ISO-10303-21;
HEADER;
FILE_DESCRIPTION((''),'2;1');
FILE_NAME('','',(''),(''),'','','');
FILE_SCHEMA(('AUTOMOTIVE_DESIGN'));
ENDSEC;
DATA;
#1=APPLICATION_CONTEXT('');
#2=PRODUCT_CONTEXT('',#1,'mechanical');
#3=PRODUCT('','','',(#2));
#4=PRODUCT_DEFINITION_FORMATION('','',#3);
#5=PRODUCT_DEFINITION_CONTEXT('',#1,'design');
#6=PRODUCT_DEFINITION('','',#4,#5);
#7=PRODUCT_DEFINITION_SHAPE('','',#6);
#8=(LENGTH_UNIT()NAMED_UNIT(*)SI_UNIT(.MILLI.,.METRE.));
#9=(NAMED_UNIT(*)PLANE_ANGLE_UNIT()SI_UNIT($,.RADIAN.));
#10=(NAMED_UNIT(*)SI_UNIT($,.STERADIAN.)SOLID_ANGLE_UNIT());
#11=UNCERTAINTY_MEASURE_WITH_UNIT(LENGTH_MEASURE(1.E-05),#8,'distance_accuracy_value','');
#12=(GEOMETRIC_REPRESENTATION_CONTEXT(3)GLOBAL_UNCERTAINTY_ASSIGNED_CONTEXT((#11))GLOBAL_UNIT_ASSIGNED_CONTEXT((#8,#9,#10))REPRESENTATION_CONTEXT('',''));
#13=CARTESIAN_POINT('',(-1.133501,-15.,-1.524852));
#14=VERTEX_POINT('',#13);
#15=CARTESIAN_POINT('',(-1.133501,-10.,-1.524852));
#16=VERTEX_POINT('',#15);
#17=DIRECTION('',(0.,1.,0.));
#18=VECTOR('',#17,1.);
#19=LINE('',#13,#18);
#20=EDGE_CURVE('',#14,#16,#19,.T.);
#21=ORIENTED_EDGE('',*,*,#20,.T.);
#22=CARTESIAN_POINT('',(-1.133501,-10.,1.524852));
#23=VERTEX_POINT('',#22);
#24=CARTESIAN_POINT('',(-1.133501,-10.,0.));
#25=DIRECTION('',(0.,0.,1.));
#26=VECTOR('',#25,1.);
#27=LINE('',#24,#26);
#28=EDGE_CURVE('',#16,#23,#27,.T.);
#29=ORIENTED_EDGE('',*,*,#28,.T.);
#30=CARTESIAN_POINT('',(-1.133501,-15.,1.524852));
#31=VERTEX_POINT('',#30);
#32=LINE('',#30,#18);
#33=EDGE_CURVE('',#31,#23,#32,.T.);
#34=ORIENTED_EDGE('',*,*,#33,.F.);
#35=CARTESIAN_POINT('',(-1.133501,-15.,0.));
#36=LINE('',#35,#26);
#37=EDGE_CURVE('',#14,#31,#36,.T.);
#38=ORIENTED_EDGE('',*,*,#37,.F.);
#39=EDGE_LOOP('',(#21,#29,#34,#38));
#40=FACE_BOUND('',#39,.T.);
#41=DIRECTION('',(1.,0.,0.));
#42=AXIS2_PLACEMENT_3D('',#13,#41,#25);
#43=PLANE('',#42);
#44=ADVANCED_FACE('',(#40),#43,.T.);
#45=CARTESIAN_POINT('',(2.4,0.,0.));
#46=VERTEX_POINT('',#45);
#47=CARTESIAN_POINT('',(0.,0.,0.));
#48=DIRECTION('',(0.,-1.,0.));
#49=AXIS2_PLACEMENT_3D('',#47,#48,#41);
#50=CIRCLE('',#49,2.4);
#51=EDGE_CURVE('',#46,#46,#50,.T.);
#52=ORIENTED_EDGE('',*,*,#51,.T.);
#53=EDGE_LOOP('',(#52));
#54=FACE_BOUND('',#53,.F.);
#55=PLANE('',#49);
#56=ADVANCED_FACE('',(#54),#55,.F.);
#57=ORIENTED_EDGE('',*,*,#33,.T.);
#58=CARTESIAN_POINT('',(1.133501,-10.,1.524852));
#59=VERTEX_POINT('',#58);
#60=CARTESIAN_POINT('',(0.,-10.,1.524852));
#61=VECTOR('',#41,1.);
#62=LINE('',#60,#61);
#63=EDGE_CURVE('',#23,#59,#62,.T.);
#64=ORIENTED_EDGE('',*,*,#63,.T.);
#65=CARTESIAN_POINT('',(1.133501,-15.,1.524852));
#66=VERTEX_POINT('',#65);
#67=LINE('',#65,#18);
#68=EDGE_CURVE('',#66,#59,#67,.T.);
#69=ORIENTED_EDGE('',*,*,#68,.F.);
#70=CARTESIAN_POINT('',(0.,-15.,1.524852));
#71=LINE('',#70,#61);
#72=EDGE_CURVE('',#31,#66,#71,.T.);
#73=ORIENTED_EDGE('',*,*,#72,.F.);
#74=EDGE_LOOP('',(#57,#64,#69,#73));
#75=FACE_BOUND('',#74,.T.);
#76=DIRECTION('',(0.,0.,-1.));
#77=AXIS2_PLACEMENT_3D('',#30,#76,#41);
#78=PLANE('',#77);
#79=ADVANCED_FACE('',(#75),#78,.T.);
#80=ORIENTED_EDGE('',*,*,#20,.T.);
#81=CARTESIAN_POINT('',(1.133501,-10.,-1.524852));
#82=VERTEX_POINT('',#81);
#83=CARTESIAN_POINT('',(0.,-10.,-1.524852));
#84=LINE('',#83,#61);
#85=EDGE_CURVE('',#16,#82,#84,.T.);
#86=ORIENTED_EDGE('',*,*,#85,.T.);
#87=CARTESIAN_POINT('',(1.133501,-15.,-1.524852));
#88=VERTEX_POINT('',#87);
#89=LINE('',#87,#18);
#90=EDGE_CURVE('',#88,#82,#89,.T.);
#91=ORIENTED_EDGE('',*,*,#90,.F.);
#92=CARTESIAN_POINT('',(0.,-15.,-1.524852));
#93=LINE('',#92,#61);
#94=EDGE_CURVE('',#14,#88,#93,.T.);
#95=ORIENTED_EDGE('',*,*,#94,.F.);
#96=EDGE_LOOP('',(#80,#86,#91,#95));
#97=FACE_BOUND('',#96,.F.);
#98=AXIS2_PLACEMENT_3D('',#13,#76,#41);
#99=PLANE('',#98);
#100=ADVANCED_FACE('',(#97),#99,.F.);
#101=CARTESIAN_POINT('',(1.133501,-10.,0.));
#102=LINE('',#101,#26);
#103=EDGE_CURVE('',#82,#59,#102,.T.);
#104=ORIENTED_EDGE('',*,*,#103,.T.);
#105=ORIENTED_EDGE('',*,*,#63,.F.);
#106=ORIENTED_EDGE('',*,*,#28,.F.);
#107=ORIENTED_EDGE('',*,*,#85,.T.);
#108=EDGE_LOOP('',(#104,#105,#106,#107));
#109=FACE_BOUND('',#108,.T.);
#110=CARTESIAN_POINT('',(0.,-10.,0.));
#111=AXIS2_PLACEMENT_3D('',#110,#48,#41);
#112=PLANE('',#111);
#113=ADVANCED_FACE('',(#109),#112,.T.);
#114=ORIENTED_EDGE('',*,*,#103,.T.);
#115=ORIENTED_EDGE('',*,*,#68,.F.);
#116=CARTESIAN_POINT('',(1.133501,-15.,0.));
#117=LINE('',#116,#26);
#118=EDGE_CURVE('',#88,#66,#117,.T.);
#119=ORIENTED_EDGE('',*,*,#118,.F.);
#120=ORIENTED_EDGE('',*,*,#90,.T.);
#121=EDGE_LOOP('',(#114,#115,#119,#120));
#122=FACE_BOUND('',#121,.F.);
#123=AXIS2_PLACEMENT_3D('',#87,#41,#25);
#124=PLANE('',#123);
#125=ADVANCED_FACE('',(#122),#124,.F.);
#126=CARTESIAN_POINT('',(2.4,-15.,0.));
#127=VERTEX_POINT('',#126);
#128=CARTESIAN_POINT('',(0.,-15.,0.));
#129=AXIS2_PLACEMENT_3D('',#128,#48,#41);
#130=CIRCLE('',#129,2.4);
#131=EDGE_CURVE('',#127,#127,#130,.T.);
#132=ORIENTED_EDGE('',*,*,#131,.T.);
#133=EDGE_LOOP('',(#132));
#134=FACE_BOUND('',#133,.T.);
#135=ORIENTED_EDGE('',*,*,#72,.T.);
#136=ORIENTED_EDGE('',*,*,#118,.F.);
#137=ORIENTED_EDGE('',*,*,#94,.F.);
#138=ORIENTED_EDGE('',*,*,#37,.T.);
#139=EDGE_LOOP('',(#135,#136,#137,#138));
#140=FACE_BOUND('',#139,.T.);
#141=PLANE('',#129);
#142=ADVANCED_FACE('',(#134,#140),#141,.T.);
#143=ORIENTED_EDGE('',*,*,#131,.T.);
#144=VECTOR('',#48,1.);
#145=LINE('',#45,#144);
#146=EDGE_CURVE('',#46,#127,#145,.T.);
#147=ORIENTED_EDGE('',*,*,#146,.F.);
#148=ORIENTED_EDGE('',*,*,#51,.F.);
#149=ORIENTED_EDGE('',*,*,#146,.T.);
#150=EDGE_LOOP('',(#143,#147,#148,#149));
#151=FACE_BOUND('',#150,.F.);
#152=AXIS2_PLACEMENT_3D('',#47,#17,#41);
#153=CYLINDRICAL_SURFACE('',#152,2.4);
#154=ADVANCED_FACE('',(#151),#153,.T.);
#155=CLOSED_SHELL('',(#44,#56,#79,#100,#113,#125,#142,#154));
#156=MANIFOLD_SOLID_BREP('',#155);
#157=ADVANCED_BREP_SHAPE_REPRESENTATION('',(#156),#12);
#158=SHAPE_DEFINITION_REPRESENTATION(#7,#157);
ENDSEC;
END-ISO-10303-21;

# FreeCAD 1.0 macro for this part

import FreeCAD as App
import Part
import Sketcher
Q = App.Units.Quantity


def add_polygon(sketch, points):
    """Adds a closed chain of lines whose ends are joined by coincident constraints."""
    first, n = sketch.GeometryCount, len(points)
    for a, b in zip(points, points[1:] + points[:1]):
        sketch.addGeometry(Part.LineSegment(App.Vector(*a, 0), App.Vector(*b, 0)), False)
    for i in range(n):
        sketch.addConstraint(Sketcher.Constraint("Coincident", first + i, 2, first + (i + 1) % n, 1))

doc = App.newDocument("Part")
body = doc.addObject("PartDesign::Body", "Body")

# Sketch on XZ plane
sketch1 = doc.addObject("Sketcher::SketchObject", "Sketch")
body.addObject(sketch1)
sketch1.AttachmentSupport = (doc.XZ_Plane, [""])
sketch1.MapMode = "FlatFace"
sketch1.addGeometry(Part.Circle(App.Vector(0, 0, 0), App.Vector(0, 0, 1), 2.4), False)
sketch1.addConstraint([
    Sketcher.Constraint("Coincident", 0, 3, -1, 1),
    Sketcher.Constraint("Diameter", 0, Q("4.8 mm")),
])
pad1 = doc.addObject("PartDesign::Pad", "Pad")
body.addObject(pad1)
pad1.Profile = sketch1
pad1.Length = 15

# Sketch on XZ plane
sketch2 = doc.addObject("Sketcher::SketchObject", "Sketch001")
body.addObject(sketch2)
sketch2.AttachmentSupport = (doc.XZ_Plane, [""])
sketch2.MapMode = "FlatFace"
sketch2.AttachmentOffset = App.Placement(App.Vector(0, 0, 15), App.Rotation())
add_polygon(sketch2, [(-1.1, 1.5), (-1.1, -1.5), (1.1, -1.5), (1.1, 1.5)])  # lines 0-3
sketch2.addConstraint([
    Sketcher.Constraint("Vertical", 0),
    Sketcher.Constraint("Horizontal", 1),
    Sketcher.Constraint("Vertical", 2),
    Sketcher.Constraint("Horizontal", 3),
    Sketcher.Constraint("Symmetric", 0, 2, 2, 2, -1, 1),
    Sketcher.Constraint("DistanceX", 0, 2, -1, 1, Q("1.133501 mm")),
    Sketcher.Constraint("DistanceY", 0, 2, 0, 1, Q("3.049704 mm")),
])
pocket1 = doc.addObject("PartDesign::Pocket", "Pocket")
body.addObject(pocket1)
pocket1.Profile = sketch2
pocket1.Length = 5

doc.recompute()
